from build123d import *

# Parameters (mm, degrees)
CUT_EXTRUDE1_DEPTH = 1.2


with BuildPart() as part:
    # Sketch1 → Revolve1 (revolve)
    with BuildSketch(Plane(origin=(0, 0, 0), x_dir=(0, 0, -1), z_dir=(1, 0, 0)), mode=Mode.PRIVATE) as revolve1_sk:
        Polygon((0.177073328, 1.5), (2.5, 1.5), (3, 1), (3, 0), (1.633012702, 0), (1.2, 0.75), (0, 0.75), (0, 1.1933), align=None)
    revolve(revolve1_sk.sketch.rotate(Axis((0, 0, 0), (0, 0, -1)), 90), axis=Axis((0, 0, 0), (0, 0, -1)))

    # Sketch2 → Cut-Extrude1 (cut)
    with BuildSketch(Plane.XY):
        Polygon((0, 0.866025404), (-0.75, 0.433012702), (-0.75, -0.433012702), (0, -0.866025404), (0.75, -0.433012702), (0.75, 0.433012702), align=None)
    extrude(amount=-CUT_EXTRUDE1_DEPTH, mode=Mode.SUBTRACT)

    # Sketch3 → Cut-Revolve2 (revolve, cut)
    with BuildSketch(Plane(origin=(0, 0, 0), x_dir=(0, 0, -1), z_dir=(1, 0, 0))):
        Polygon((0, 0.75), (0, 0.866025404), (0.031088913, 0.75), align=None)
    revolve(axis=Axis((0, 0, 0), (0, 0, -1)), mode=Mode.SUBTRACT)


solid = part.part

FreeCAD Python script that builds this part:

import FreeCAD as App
import Part
import Sketcher

V = App.Vector
Q = App.Units.Quantity

doc = App.newDocument("Part")
body = doc.addObject("PartDesign::Body", "Body")

sketch1 = body.newObject("Sketcher::SketchObject", "Sketch")
sketch1.AttachmentSupport = (doc.getObject("YZ_Plane"), [""])
sketch1.MapMode = "FlatFace"
sketch1.addGeometry(Part.LineSegment(V(1.5, -2.5, 0), V(1.5, -0.177073, 0)), False)
sketch1.addGeometry(Part.LineSegment(V(1.5, -0.177073, 0), V(1.1933, 0, 0)), False)
sketch1.addGeometry(Part.LineSegment(V(1.1933, 0, 0), V(0.75, 0, 0)), False)
sketch1.addGeometry(Part.LineSegment(V(0.75, 0, 0), V(0.75, -1.2, 0)), False)
sketch1.addGeometry(Part.LineSegment(V(0.75, -1.2, 0), V(0, -1.633013, 0)), False)
sketch1.addGeometry(Part.LineSegment(V(0, -1.633013, 0), V(0, -3, 0)), False)
sketch1.addGeometry(Part.LineSegment(V(0, -3, 0), V(1, -3, 0)), False)
sketch1.addGeometry(Part.LineSegment(V(1, -3, 0), V(1.5, -2.5, 0)), False)
sketch1.addConstraint(Sketcher.Constraint("Coincident", 0, 2, 1, 1))
sketch1.addConstraint(Sketcher.Constraint("Coincident", 1, 2, 2, 1))
sketch1.addConstraint(Sketcher.Constraint("Coincident", 2, 2, 3, 1))
sketch1.addConstraint(Sketcher.Constraint("Coincident", 3, 2, 4, 1))
sketch1.addConstraint(Sketcher.Constraint("Coincident", 4, 2, 5, 1))
sketch1.addConstraint(Sketcher.Constraint("Coincident", 5, 2, 6, 1))
sketch1.addConstraint(Sketcher.Constraint("Coincident", 6, 2, 7, 1))
sketch1.addConstraint(Sketcher.Constraint("Coincident", 7, 2, 0, 1))
sketch1.addConstraint(Sketcher.Constraint("Vertical", 0))
sketch1.addConstraint(Sketcher.Constraint("Horizontal", 2))
sketch1.addConstraint(Sketcher.Constraint("Vertical", 3))
sketch1.addConstraint(Sketcher.Constraint("Vertical", 5))
sketch1.addConstraint(Sketcher.Constraint("Horizontal", 6))
sketch1.addConstraint(Sketcher.Constraint("PointOnObject", 1, 2, -1))
sketch1.addConstraint(Sketcher.Constraint("PointOnObject", 4, 2, -2))
sketch1.addConstraint(Sketcher.Constraint("DistanceX", 6, 1, 6, 2, 1.0))
sketch1.addConstraint(Sketcher.Constraint("Angle", 1, Q("150 deg")))
sketch1.addConstraint(Sketcher.Constraint("Angle", 4, Q("-150 deg")))
sketch1.addConstraint(Sketcher.Constraint("Angle", 7, Q("45 deg")))
sketch1.addConstraint(Sketcher.Constraint("DistanceY", 3, 2, 3, 1, 1.2))
sketch1.addConstraint(Sketcher.Constraint("DistanceY", 5, 2, -1, 1, 3.0))
sketch1.addConstraint(Sketcher.Constraint("DistanceX", -1, 1, 0, 2, 1.5))
sketch1.addConstraint(Sketcher.Constraint("DistanceX", -1, 1, 2, 2, 0.75))
sketch1.addConstraint(Sketcher.Constraint("DistanceX", 2, 2, 2, 1, 0.4433))
revolution = body.newObject("PartDesign::Revolution", "Revolution")
revolution.Profile = sketch1
revolution.ReferenceAxis = (sketch1, ["V_Axis"])
revolution.Angle = 360

sketch2 = body.newObject("Sketcher::SketchObject", "Sketch001")
sketch2.AttachmentSupport = (doc.getObject("XY_Plane"), [""])
sketch2.MapMode = "FlatFace"
sketch2.addGeometry(Part.LineSegment(V(0, 0.866025, 0), V(-0.75, 0.433013, 0)), False)
sketch2.addGeometry(Part.LineSegment(V(-0.75, 0.433013, 0), V(-0.75, -0.433013, 0)), False)
sketch2.addGeometry(Part.LineSegment(V(-0.75, -0.433013, 0), V(0, -0.866025, 0)), False)
sketch2.addGeometry(Part.LineSegment(V(0, -0.866025, 0), V(0.75, -0.433013, 0)), False)
sketch2.addGeometry(Part.LineSegment(V(0.75, -0.433013, 0), V(0.75, 0.433013, 0)), False)
sketch2.addGeometry(Part.LineSegment(V(0.75, 0.433013, 0), V(0, 0.866025, 0)), False)
sketch2.addConstraint(Sketcher.Constraint("Coincident", 0, 2, 1, 1))
sketch2.addConstraint(Sketcher.Constraint("Coincident", 1, 2, 2, 1))
sketch2.addConstraint(Sketcher.Constraint("Coincident", 2, 2, 3, 1))
sketch2.addConstraint(Sketcher.Constraint("Coincident", 3, 2, 4, 1))
sketch2.addConstraint(Sketcher.Constraint("Coincident", 4, 2, 5, 1))
sketch2.addConstraint(Sketcher.Constraint("Coincident", 5, 2, 0, 1))
sketch2.addConstraint(Sketcher.Constraint("Vertical", 1))
sketch2.addConstraint(Sketcher.Constraint("Vertical", 4))
sketch2.addConstraint(Sketcher.Constraint("Symmetric", 0, 2, 3, 2, -1, 1))
sketch2.addConstraint(Sketcher.Constraint("Symmetric", 2, 2, 5, 2, -1, 1))
sketch2.addConstraint(Sketcher.Constraint("PointOnObject", 2, 2, -2))
sketch2.addConstraint(Sketcher.Constraint("Parallel", 2, 5))
sketch2.addConstraint(Sketcher.Constraint("Horizontal", 1, 2, 3, 2))
sketch2.addConstraint(Sketcher.Constraint("Angle", 0, Q("-150 deg")))
sketch2.addConstraint(Sketcher.Constraint("DistanceX", 1, 2, 3, 2, 1.5))
sketch2.addConstraint(Sketcher.Constraint("DistanceY", 1, 2, 1, 1, 0.866025))
pocket1 = body.newObject("PartDesign::Pocket", "Pocket")
pocket1.Profile = sketch2
pocket1.Length = 1.2

sketch3 = body.newObject("Sketcher::SketchObject", "Sketch002")
sketch3.AttachmentSupport = (doc.getObject("YZ_Plane"), [""])
sketch3.MapMode = "FlatFace"
sketch3.addGeometry(Part.LineSegment(V(0.866025, 0, 0), V(0.75, 0, 0)), False)
sketch3.addGeometry(Part.LineSegment(V(0.75, 0, 0), V(0.75, -0.031089, 0)), False)
sketch3.addGeometry(Part.LineSegment(V(0.75, -0.031089, 0), V(0.866025, 0, 0)), False)
sketch3.addConstraint(Sketcher.Constraint("Coincident", 0, 2, 1, 1))
sketch3.addConstraint(Sketcher.Constraint("Coincident", 1, 2, 2, 1))
sketch3.addConstraint(Sketcher.Constraint("Coincident", 2, 2, 0, 1))
sketch3.addConstraint(Sketcher.Constraint("Horizontal", 0))
sketch3.addConstraint(Sketcher.Constraint("Vertical", 1))
sketch3.addConstraint(Sketcher.Constraint("PointOnObject", 0, 2, -1))
sketch3.addConstraint(Sketcher.Constraint("Angle", 2, Q("15 deg")))
sketch3.addConstraint(Sketcher.Constraint("DistanceX", -1, 1, 0, 2, 0.75))
sketch3.addConstraint(Sketcher.Constraint("DistanceY", 1, 2, 1, 1, 0.031089))
groove = body.newObject("PartDesign::Groove", "Groove")
groove.Profile = sketch3
groove.ReferenceAxis = (sketch3, ["V_Axis"])
groove.Angle = 360

doc.recompute()
